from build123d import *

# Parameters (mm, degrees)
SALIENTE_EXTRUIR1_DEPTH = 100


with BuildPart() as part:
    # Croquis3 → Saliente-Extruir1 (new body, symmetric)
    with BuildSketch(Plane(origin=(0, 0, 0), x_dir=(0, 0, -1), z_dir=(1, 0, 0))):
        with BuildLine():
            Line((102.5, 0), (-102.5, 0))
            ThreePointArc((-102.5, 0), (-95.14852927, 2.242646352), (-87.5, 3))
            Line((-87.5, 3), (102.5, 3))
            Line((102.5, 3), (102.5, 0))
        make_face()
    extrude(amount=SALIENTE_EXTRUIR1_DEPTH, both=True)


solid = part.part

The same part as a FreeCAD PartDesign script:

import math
import FreeCAD as App
import Part
import Sketcher
from FreeCAD import Vector
Q = App.Units.Quantity

doc = App.newDocument("Part")
body = doc.addObject("PartDesign::Body", "Body")

sketch1 = doc.addObject("Sketcher::SketchObject", "Sketch")
body.addObject(sketch1)
sketch1.AttachmentSupport = (doc.YZ_Plane, [""])
sketch1.MapMode = "FlatFace"
sketch1.addGeometry([
    Part.LineSegment(Vector(0, 102.5, 0), Vector(0, -102.5, 0)),
    Part.LineSegment(Vector(0, -102.5, 0), Vector(3, -102.5, 0)),
    Part.LineSegment(Vector(3, -102.5, 0), Vector(3, 87.5, 0)),
    Part.ArcOfCircle(Part.Circle(Vector(-36, 87.5, 0), Vector(0, 0, 1), 39), math.radians(0), math.radians(23)),
], False)
sketch1.addConstraint([
    Sketcher.Constraint("Coincident", 0, 2, 1, 1),
    Sketcher.Constraint("Coincident", 1, 2, 2, 1),
    Sketcher.Constraint("Tangent", 2, 2, 3, 1),
    Sketcher.Constraint("Coincident", 3, 2, 0, 1),
    Sketcher.Constraint("Vertical", 0),
    Sketcher.Constraint("Horizontal", 1),
    Sketcher.Constraint("Vertical", 2),
    Sketcher.Constraint("Symmetric", 0, 2, 3, 2, -1, 1),
    Sketcher.Constraint("Radius", 3, Q("39 mm")),
    Sketcher.Constraint("DistanceX", 1, 1, 1, 2, Q("3 mm")),
    Sketcher.Constraint("DistanceY", 0, 2, 0, 1, Q("205 mm")),
])
pad1 = doc.addObject("PartDesign::Pad", "Pad")
body.addObject(pad1)
pad1.Profile = sketch1
pad1.Length = 200
pad1.Midplane = True

doc.recompute()
